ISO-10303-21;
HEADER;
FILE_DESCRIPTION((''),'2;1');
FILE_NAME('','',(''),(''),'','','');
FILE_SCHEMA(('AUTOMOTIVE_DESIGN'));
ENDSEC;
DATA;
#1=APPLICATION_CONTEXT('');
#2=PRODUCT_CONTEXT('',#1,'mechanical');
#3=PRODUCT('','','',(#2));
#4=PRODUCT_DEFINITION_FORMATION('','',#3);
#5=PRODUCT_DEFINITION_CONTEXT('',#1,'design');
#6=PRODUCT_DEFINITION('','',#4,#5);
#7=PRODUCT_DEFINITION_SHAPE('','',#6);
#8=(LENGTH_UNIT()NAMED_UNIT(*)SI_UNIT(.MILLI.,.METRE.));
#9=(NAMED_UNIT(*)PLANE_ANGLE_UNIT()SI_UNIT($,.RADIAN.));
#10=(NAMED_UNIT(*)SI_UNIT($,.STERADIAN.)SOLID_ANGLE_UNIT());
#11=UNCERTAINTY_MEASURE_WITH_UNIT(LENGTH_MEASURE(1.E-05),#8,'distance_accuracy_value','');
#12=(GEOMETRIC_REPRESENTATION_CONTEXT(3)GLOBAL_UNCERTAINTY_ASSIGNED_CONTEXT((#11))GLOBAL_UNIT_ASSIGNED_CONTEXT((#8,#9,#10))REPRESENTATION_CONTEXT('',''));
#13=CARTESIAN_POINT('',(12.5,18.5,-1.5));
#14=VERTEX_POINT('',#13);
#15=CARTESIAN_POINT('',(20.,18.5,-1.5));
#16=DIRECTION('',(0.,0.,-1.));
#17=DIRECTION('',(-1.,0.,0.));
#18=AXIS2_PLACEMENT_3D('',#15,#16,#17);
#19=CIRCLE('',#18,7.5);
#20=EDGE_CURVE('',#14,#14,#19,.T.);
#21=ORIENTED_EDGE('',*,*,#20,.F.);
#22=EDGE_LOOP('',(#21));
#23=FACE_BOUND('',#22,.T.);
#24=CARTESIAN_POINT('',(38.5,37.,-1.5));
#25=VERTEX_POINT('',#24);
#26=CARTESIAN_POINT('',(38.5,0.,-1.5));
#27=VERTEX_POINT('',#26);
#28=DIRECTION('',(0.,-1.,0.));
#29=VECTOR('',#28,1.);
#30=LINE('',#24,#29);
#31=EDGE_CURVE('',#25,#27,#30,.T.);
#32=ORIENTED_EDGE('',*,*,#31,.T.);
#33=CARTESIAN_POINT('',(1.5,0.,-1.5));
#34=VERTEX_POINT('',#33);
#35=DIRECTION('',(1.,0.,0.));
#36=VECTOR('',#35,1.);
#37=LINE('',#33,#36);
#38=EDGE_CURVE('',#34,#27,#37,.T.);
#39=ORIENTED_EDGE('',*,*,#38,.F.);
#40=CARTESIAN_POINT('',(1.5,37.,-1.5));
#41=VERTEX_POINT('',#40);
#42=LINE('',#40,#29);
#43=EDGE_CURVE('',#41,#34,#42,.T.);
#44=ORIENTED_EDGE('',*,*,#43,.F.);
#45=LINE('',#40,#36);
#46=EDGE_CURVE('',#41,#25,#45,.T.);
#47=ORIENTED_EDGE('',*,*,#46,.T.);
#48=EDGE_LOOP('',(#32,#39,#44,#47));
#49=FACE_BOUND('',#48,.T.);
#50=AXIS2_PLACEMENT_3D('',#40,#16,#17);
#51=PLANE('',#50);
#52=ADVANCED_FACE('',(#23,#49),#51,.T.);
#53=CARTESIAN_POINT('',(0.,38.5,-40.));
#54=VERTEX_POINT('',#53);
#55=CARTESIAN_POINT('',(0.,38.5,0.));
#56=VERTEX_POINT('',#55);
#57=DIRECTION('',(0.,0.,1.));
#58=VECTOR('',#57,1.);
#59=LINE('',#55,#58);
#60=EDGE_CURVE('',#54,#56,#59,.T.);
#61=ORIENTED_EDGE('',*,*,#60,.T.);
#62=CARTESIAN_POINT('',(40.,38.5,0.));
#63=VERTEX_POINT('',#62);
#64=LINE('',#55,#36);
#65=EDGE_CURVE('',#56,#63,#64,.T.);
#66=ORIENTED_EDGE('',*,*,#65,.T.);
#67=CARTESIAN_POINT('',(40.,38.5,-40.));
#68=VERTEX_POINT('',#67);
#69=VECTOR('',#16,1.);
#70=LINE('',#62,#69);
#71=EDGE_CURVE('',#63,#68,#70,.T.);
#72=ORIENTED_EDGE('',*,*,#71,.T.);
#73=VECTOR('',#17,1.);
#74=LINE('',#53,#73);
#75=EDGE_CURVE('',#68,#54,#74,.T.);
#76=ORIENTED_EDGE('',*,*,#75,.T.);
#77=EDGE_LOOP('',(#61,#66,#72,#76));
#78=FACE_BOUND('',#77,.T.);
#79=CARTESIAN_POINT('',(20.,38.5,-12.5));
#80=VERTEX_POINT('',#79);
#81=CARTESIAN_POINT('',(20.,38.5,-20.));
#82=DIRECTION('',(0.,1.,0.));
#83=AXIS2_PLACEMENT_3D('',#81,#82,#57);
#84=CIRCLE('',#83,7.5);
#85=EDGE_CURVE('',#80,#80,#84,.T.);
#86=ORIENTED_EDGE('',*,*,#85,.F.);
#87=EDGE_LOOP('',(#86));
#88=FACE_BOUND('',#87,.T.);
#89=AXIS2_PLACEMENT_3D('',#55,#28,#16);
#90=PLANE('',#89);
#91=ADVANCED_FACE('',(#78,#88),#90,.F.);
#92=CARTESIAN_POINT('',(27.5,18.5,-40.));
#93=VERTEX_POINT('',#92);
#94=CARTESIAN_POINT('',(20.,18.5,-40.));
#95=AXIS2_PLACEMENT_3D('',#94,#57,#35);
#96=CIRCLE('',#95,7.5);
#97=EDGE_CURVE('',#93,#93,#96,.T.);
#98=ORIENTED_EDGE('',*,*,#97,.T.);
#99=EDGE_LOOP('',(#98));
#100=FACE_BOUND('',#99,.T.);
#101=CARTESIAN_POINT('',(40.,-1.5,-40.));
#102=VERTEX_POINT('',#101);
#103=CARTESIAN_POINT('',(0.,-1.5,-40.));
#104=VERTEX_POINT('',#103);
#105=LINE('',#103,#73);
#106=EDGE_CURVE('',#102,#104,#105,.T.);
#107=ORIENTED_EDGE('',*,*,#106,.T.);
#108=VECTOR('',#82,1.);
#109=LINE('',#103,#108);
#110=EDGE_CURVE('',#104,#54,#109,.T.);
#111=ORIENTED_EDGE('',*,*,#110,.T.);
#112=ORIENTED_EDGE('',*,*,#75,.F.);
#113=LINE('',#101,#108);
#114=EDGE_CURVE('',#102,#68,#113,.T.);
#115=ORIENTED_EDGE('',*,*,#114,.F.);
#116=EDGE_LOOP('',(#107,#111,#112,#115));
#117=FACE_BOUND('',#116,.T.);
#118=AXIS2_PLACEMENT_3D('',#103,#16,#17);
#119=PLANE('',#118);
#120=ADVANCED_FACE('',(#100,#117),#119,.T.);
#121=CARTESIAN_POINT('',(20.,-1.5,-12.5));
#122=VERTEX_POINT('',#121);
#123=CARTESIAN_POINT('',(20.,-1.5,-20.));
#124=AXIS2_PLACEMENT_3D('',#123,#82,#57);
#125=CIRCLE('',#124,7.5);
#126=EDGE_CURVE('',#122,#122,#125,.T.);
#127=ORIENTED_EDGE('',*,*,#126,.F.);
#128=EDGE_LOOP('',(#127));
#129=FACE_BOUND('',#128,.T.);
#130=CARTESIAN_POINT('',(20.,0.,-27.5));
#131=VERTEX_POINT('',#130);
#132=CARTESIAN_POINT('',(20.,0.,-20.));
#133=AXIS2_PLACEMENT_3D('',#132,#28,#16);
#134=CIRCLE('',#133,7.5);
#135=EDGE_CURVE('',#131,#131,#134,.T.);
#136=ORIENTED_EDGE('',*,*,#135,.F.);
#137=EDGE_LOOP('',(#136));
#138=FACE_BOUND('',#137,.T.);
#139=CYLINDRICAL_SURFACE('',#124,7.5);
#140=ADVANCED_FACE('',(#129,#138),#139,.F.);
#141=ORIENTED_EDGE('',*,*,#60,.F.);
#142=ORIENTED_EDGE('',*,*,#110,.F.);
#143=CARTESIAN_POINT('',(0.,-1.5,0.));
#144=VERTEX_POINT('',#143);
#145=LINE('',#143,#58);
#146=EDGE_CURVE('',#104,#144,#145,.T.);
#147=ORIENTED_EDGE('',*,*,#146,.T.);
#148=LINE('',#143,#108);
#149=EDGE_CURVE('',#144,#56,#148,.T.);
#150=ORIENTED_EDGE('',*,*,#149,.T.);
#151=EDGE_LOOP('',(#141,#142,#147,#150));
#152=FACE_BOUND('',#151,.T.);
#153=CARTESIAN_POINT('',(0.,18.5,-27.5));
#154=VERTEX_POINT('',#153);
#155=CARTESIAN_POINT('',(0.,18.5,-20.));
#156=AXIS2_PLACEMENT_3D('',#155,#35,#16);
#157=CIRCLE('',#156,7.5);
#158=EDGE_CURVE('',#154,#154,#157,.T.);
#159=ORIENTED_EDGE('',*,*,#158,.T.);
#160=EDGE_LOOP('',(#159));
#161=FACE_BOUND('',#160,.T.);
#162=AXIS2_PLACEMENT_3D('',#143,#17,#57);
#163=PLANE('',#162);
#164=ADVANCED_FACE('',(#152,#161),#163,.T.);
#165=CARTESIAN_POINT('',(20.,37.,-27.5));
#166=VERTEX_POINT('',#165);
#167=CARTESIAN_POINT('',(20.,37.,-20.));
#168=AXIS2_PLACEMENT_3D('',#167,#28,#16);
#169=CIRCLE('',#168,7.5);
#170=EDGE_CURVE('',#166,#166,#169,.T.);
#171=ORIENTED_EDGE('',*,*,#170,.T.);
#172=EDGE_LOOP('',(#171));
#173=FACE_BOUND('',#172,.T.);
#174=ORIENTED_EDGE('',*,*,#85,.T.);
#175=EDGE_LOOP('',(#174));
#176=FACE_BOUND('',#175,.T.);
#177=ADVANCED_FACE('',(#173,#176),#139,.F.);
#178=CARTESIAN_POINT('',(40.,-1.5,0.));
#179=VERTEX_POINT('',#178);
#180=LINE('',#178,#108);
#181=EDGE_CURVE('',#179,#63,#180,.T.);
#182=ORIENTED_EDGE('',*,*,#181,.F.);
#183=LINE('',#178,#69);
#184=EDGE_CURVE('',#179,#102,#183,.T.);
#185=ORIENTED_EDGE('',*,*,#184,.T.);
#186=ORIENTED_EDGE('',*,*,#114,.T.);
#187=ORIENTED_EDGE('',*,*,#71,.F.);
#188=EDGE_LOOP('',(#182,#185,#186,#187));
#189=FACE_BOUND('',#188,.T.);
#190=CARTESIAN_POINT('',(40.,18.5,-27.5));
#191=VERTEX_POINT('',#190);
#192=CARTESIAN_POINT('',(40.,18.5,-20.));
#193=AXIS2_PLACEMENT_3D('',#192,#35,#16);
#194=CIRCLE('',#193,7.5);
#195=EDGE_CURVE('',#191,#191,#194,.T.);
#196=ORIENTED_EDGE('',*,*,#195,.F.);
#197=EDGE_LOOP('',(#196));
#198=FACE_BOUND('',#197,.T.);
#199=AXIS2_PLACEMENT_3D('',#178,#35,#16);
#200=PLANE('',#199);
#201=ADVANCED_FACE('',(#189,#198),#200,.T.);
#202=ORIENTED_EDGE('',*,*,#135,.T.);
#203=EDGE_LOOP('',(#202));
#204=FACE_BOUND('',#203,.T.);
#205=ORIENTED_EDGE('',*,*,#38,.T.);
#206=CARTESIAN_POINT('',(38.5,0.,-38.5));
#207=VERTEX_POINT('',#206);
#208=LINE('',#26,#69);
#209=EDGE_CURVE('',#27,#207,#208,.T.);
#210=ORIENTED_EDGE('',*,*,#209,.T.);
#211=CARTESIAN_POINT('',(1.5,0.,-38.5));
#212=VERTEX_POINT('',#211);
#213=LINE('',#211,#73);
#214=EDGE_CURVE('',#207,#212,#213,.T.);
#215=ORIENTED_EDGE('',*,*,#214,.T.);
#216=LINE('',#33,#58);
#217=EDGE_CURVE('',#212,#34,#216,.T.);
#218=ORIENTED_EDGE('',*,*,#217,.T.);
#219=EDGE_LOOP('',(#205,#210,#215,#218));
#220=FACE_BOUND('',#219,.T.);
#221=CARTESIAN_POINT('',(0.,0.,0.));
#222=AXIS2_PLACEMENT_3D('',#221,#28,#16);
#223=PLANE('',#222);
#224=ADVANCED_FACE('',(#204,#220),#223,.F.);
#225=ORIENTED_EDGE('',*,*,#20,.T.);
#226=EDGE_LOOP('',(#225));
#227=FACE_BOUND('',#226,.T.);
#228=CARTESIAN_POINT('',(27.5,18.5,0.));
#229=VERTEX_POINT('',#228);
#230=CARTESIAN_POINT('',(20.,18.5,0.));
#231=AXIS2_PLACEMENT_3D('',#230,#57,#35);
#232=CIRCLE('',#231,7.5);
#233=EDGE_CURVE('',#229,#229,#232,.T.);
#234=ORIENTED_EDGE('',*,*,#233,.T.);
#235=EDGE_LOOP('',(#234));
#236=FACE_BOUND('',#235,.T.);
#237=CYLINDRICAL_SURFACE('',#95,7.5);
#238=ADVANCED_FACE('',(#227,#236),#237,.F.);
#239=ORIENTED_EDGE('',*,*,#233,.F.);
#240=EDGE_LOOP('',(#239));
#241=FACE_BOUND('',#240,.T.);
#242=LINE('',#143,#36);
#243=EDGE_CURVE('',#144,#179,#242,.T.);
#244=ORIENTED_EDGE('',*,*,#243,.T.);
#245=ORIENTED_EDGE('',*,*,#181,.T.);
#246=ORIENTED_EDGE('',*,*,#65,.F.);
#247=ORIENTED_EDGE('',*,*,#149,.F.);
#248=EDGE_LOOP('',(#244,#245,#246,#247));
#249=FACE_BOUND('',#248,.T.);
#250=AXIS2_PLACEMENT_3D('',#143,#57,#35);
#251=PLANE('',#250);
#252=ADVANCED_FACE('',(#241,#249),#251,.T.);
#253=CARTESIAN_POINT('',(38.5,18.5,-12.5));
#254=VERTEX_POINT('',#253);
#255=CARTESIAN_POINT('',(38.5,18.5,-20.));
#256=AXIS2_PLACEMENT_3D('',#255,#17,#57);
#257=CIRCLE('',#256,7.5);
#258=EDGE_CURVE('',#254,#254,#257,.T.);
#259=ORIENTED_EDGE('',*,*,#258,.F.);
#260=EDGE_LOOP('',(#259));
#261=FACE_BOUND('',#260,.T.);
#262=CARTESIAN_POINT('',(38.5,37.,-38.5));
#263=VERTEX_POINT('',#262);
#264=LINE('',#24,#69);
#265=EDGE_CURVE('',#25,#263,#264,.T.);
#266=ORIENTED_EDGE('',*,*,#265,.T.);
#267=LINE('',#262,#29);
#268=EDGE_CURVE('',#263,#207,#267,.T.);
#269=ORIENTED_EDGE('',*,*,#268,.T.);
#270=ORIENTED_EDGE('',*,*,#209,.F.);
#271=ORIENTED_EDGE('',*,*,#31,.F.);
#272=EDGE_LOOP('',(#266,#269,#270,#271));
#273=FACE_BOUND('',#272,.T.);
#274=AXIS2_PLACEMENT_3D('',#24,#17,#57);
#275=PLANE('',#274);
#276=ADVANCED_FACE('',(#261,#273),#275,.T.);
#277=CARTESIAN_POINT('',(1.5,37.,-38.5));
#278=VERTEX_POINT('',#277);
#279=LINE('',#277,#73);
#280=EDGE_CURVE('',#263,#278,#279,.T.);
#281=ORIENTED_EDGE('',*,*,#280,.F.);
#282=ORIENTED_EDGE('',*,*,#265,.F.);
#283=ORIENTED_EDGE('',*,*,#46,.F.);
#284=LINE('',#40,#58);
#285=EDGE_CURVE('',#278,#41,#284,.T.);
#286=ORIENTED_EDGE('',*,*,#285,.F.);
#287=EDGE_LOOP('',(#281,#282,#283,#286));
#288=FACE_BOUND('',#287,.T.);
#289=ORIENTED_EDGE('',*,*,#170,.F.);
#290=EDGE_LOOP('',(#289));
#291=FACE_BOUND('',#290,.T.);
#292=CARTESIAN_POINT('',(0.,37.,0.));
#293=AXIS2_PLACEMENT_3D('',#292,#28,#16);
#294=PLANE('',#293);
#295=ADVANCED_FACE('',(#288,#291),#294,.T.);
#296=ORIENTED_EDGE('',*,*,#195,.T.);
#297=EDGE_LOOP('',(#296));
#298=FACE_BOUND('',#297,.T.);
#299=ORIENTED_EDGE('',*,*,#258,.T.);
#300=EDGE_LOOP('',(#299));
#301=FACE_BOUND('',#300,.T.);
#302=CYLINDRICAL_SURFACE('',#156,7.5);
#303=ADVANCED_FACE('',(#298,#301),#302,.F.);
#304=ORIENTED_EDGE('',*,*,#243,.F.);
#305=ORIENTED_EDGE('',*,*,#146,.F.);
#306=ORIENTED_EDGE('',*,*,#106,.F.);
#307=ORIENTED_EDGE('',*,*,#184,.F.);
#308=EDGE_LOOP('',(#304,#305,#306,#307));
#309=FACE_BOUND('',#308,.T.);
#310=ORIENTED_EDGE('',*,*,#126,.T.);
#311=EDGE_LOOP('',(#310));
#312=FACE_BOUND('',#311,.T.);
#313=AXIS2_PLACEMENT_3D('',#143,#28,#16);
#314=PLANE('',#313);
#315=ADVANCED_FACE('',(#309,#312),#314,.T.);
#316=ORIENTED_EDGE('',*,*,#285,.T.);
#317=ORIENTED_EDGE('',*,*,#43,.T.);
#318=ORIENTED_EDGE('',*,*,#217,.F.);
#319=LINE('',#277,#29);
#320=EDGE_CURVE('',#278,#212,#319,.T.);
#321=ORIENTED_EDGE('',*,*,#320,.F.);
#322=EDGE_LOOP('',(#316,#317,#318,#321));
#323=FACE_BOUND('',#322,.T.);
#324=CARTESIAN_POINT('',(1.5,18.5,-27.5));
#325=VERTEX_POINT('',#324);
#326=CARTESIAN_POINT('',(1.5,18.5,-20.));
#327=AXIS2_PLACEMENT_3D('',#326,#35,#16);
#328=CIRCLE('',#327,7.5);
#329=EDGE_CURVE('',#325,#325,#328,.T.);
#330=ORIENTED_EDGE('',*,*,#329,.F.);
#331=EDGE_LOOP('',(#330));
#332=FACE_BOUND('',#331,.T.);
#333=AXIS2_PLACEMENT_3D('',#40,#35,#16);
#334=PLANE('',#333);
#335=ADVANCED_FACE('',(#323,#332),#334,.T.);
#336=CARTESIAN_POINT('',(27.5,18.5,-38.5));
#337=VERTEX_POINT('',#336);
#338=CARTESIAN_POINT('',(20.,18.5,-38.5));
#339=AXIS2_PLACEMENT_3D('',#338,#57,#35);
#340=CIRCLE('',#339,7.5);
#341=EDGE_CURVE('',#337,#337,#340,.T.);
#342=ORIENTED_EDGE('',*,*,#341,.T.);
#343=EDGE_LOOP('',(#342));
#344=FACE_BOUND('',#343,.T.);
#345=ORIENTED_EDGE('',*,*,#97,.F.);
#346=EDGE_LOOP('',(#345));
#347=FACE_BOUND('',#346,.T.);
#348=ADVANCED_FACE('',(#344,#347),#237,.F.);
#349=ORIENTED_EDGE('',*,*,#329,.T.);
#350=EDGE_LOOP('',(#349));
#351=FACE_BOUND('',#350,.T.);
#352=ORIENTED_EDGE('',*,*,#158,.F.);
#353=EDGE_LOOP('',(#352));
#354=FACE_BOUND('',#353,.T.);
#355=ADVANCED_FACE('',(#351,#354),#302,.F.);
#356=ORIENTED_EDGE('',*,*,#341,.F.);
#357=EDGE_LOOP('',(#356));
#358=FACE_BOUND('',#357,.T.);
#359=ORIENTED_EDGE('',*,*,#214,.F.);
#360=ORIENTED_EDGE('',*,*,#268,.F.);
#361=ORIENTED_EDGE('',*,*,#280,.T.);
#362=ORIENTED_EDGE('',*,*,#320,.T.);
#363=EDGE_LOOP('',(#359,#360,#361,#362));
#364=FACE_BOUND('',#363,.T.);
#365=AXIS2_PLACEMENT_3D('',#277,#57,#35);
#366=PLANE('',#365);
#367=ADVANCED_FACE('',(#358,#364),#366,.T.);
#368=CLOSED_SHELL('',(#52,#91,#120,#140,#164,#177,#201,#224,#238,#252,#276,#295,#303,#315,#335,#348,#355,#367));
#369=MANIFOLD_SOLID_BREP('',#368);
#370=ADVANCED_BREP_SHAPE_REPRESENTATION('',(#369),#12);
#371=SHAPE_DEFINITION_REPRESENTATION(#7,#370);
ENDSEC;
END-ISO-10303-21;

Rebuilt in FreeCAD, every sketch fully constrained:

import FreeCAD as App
import Part
import Sketcher


def add_polygon(sketch, points):
    """Adds a closed chain of lines whose ends are joined by coincident constraints."""
    first, n = sketch.GeometryCount, len(points)
    for a, b in zip(points, points[1:] + points[:1]):
        sketch.addGeometry(Part.LineSegment(App.Vector(*a, 0), App.Vector(*b, 0)), False)
    for i in range(n):
        sketch.addConstraint(Sketcher.Constraint("Coincident", first + i, 2, first + (i + 1) % n, 1))

doc = App.newDocument("Part")
body = doc.addObject("PartDesign::Body", "Body")

# Sketch on XZ plane
sketch1 = body.newObject("Sketcher::SketchObject", "Sketch")
sketch1.AttachmentSupport = (doc.getObject("XZ_Plane"), [""])
sketch1.MapMode = "FlatFace"
add_polygon(sketch1, [(0, -40), (0, 0), (40, 0), (40, -40)])  # lines 0-3
sketch1.addConstraint(Sketcher.Constraint("Vertical", 0))
sketch1.addConstraint(Sketcher.Constraint("Horizontal", 1))
sketch1.addConstraint(Sketcher.Constraint("Vertical", 2))
sketch1.addConstraint(Sketcher.Constraint("Horizontal", 3))
sketch1.addConstraint(Sketcher.Constraint("Coincident", 0, 2, -1, 1))
sketch1.addConstraint(Sketcher.Constraint("Equal", 3, 0))
sketch1.addConstraint(Sketcher.Constraint("DistanceX", 1, 1, 1, 2, 40.0))
pad1 = body.newObject("PartDesign::Pad", "Pad")
pad1.Profile = sketch1
pad1.Length = 1.5

# Sketch on XZ plane
sketch2 = body.newObject("Sketcher::SketchObject", "Sketch001")
sketch2.AttachmentSupport = (doc.getObject("XZ_Plane"), [""])
sketch2.MapMode = "FlatFace"
add_polygon(sketch2, [(0, -40), (0, 0), (40, 0), (40, -40)])  # lines 0-3
add_polygon(sketch2, [(38, -2), (2, -2), (2, -38), (38, -38)])  # lines 4-7
sketch2.addConstraint(Sketcher.Constraint("Vertical", 0))
sketch2.addConstraint(Sketcher.Constraint("Horizontal", 1))
sketch2.addConstraint(Sketcher.Constraint("Vertical", 2))
sketch2.addConstraint(Sketcher.Constraint("Horizontal", 3))
sketch2.addConstraint(Sketcher.Constraint("Horizontal", 4))
sketch2.addConstraint(Sketcher.Constraint("Vertical", 5))
sketch2.addConstraint(Sketcher.Constraint("Horizontal", 6))
sketch2.addConstraint(Sketcher.Constraint("Vertical", 7))
sketch2.addConstraint(Sketcher.Constraint("Coincident", 0, 2, -1, 1))
sketch2.addConstraint(Sketcher.Constraint("Equal", 3, 0))
sketch2.addConstraint(Sketcher.Constraint("Equal", 6, 5))
sketch2.addConstraint(Sketcher.Constraint("DistanceX", 1, 1, 1, 2, 40.0))
sketch2.addConstraint(Sketcher.Constraint("DistanceX", 4, 2, 4, 1, 37.0))
sketch2.addConstraint(Sketcher.Constraint("DistanceX", -1, 1, 4, 2, 1.5))
sketch2.addConstraint(Sketcher.Constraint("DistanceY", 4, 2, -1, 1, 1.5))
pad2 = body.newObject("PartDesign::Pad", "Pad001")
pad2.Profile = sketch2
pad2.Length = 37
pad2.Reversed = True

# Sketch on XZ plane
sketch3 = body.newObject("Sketcher::SketchObject", "Sketch002")
sketch3.AttachmentSupport = (doc.getObject("XZ_Plane"), [""])
sketch3.MapMode = "FlatFace"
sketch3.AttachmentOffset = App.Placement(App.Vector(0, 0, -37), App.Rotation())
add_polygon(sketch3, [(0, -40), (0, 0), (40, 0), (40, -40)])  # lines 0-3
sketch3.addConstraint(Sketcher.Constraint("Vertical", 0))
sketch3.addConstraint(Sketcher.Constraint("Horizontal", 1))
sketch3.addConstraint(Sketcher.Constraint("Vertical", 2))
sketch3.addConstraint(Sketcher.Constraint("Horizontal", 3))
sketch3.addConstraint(Sketcher.Constraint("Coincident", 0, 2, -1, 1))
sketch3.addConstraint(Sketcher.Constraint("Equal", 3, 0))
sketch3.addConstraint(Sketcher.Constraint("DistanceX", 1, 1, 1, 2, 40.0))
pad3 = body.newObject("PartDesign::Pad", "Pad002")
pad3.Profile = sketch3
pad3.Length = 1.5
pad3.Reversed = True

# Sketch on XZ plane
sketch4 = body.newObject("Sketcher::SketchObject", "Sketch003")
sketch4.AttachmentSupport = (doc.getObject("XZ_Plane"), [""])
sketch4.MapMode = "FlatFace"
sketch4.AttachmentOffset = App.Placement(App.Vector(0, 0, -38.5), App.Rotation())
sketch4.addGeometry(Part.Circle(App.Vector(20, -20, 0), App.Vector(0, 0, 1), 8), False)
sketch4.addConstraint(Sketcher.Constraint("Diameter", 0, 15.0))
sketch4.addConstraint(Sketcher.Constraint("DistanceX", -1, 1, 0, 3, 20.0))
sketch4.addConstraint(Sketcher.Constraint("DistanceY", 0, 3, -1, 1, 20.0))
pocket1 = body.newObject("PartDesign::Pocket", "Pocket")
pocket1.Profile = sketch4
pocket1.Type = "ThroughAll"
pocket1.Reversed = True

# Sketch on YZ plane
sketch5 = body.newObject("Sketcher::SketchObject", "Sketch004")
sketch5.AttachmentSupport = (doc.getObject("YZ_Plane"), [""])
sketch5.MapMode = "FlatFace"
sketch5.AttachmentOffset = App.Placement(App.Vector(0, 0, 40), App.Rotation())
sketch5.addGeometry(Part.Circle(App.Vector(18, -20, 0), App.Vector(0, 0, 1), 8), False)
sketch5.addConstraint(Sketcher.Constraint("Diameter", 0, 15.0))
sketch5.addConstraint(Sketcher.Constraint("DistanceY", 0, 3, -1, 1, 20.0))
sketch5.addConstraint(Sketcher.Constraint("DistanceX", -1, 1, 0, 3, 18.5))
pocket2 = body.newObject("PartDesign::Pocket", "Pocket001")
pocket2.Profile = sketch5
pocket2.Type = "ThroughAll"

# Sketch on XY plane
sketch6 = body.newObject("Sketcher::SketchObject", "Sketch005")
sketch6.AttachmentSupport = (doc.getObject("XY_Plane"), [""])
sketch6.MapMode = "FlatFace"
sketch6.addGeometry(Part.Circle(App.Vector(20, 18, 0), App.Vector(0, 0, 1), 8), False)
sketch6.addConstraint(Sketcher.Constraint("Diameter", 0, 15.0))
sketch6.addConstraint(Sketcher.Constraint("DistanceX", -1, 1, 0, 3, 20.0))
sketch6.addConstraint(Sketcher.Constraint("DistanceY", -1, 1, 0, 3, 18.5))
pocket3 = body.newObject("PartDesign::Pocket", "Pocket002")
pocket3.Profile = sketch6
pocket3.Type = "ThroughAll"

doc.recompute()
